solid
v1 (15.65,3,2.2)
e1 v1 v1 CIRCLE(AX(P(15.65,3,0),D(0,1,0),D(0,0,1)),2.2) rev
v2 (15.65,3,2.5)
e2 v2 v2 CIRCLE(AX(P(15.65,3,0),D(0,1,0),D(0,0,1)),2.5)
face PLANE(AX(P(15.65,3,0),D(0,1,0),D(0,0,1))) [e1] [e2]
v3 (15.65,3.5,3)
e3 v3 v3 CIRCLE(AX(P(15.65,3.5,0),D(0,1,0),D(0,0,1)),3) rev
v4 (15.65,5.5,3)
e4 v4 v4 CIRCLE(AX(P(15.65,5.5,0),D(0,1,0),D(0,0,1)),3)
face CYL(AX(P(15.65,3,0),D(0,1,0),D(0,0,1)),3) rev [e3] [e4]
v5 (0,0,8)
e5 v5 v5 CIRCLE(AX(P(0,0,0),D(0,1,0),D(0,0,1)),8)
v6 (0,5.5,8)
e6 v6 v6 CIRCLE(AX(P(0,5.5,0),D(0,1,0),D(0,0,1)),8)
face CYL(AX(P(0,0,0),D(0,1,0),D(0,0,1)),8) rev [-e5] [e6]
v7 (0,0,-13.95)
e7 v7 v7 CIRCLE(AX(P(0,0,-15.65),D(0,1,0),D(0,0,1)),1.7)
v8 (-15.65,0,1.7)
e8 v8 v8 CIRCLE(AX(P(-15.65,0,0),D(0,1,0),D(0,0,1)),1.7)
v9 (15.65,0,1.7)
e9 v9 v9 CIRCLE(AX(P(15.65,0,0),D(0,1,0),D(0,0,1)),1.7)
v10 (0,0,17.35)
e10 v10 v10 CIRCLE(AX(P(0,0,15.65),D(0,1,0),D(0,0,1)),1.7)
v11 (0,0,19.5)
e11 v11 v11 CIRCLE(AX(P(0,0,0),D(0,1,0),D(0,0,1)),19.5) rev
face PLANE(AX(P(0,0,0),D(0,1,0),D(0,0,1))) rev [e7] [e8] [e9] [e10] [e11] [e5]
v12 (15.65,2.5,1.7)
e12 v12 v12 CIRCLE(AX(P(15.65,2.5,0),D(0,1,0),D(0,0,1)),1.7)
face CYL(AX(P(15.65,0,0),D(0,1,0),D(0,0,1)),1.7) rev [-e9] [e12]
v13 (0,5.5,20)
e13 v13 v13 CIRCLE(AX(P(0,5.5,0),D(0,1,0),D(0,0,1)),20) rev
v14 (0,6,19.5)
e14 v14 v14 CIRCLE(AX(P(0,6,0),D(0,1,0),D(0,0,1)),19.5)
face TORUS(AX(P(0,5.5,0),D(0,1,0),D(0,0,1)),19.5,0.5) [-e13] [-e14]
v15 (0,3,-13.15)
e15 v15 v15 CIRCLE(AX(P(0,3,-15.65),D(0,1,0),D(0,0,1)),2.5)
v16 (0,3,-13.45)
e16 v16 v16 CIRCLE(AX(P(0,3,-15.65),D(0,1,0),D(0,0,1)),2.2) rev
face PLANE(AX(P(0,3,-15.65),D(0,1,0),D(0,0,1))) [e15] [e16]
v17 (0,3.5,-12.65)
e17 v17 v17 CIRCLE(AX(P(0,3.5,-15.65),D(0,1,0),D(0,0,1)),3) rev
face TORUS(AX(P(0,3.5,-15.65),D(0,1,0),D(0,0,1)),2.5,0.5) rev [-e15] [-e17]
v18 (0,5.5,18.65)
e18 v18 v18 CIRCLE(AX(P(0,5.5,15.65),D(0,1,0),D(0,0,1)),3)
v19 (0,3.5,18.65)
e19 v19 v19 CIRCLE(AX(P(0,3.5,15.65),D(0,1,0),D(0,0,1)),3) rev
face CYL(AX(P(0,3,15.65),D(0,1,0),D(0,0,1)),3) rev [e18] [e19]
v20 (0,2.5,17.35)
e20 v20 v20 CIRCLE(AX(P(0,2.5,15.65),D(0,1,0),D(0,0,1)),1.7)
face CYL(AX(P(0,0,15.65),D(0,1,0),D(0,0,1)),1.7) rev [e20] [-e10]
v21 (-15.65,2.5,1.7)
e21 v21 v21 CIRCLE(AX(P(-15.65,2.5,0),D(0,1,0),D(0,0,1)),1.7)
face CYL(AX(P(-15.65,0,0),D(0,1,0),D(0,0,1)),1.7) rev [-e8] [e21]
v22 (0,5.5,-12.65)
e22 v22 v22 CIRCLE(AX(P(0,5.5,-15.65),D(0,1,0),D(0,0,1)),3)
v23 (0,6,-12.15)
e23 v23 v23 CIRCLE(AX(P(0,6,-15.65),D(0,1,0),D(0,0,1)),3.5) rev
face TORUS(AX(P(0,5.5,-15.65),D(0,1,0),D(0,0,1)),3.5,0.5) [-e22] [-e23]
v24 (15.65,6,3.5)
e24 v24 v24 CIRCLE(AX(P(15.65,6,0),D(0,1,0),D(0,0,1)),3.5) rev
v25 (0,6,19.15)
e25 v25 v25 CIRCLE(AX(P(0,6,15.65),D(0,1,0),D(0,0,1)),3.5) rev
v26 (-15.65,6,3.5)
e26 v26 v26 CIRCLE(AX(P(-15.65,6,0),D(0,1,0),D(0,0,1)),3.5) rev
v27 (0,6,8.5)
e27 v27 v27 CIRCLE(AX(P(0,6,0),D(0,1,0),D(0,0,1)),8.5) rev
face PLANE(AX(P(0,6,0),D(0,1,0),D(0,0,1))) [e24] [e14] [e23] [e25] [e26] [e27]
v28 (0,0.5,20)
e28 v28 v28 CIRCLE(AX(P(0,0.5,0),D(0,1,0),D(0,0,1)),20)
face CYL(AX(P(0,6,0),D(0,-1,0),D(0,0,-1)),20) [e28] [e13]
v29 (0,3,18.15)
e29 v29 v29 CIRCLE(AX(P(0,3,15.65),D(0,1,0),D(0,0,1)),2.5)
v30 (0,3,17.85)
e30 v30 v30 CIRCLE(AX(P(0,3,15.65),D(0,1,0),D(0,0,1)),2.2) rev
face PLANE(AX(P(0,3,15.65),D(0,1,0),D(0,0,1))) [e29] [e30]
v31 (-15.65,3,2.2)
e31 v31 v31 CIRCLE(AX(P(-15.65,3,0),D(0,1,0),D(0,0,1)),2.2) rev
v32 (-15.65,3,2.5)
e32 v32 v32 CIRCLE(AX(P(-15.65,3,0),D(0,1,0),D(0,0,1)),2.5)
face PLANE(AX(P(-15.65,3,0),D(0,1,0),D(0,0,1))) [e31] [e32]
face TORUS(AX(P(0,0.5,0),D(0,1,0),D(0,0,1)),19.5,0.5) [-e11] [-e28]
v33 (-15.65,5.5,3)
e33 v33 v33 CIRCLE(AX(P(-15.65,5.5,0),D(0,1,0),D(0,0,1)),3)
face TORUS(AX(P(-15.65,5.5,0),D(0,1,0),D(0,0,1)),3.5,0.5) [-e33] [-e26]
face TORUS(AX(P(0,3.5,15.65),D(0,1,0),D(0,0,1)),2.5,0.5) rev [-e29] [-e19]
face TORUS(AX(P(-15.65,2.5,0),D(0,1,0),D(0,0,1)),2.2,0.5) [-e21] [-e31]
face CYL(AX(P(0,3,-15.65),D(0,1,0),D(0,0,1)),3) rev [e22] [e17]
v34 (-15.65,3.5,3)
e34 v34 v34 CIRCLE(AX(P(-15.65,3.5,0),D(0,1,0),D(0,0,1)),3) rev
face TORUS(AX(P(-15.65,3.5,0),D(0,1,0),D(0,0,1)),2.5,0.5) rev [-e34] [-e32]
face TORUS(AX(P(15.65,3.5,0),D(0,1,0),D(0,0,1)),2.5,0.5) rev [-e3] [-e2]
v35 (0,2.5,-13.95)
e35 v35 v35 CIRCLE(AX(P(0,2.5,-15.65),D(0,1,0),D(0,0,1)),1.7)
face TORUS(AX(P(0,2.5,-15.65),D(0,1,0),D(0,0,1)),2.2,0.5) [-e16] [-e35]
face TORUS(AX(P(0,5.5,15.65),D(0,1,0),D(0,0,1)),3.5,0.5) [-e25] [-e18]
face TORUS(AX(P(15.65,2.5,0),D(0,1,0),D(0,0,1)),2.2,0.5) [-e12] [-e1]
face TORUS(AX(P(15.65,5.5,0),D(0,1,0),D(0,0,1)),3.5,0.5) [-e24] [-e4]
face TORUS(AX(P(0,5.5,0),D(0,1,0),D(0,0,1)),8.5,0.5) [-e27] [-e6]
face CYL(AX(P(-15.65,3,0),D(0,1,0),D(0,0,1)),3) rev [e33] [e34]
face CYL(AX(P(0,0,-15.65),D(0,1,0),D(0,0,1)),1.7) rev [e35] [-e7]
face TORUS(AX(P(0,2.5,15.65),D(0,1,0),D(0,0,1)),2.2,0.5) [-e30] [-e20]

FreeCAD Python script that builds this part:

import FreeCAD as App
import Part
import Sketcher
from FreeCAD import Vector
Q = App.Units.Quantity


def edges_at(feature, points):
    """Names of the edges that pass closest to the given points."""
    edges = feature.Shape.Edges
    near = lambda p: min(range(len(edges)), key=lambda i: edges[i].distToShape(Part.Vertex(*p))[0])
    return sorted({f"Edge{near(p) + 1}" for p in points})

doc = App.newDocument("Part")
params = doc.addObject("Spreadsheet::Sheet", "Params")
for row, (alias, value) in enumerate([
    ("sketch1_diameter", "40 mm"),
    ("pad1_length", "6 mm"),
    ("sketch2_diameter", "16 mm"),
    ("sketch3_diameter", "3.4 mm"),
    ("sketch4_diameter", "6 mm"),
    ("pocket3_length", "3 mm"),
    ("fillet_radius", "0.5 mm"),
    ("fillet2_radius", "0.5 mm"),
    ("fillet3_radius", "0.5 mm"),
], start=1):
    params.set(f"A{row}", alias)
    params.set(f"B{row}", "=" + value)
    params.setAlias(f"B{row}", alias)

body = doc.addObject("PartDesign::Body", "Body")

# Sketch on XZ plane
sketch1 = doc.addObject("Sketcher::SketchObject", "Sketch")
body.addObject(sketch1)
sketch1.AttachmentSupport = (doc.XZ_Plane, [""])
sketch1.MapMode = "FlatFace"
sketch1.addGeometry(Part.Circle(Vector(0, 0, 0), Vector(0, 0, 1), 20), False)
sketch1.addConstraint([
    Sketcher.Constraint("Coincident", 0, 3, -1, 1),
    Sketcher.Constraint("Diameter", 0, Q("40 mm")),
])
sketch1.setExpression("Constraints[1]", "Params.sketch1_diameter")
pad1 = doc.addObject("PartDesign::Pad", "Pad")
body.addObject(pad1)
pad1.Profile = sketch1
pad1.setExpression("Length", "Params.pad1_length")
pad1.Reversed = True

# Sketch on XZ plane
sketch2 = doc.addObject("Sketcher::SketchObject", "Sketch001")
body.addObject(sketch2)
sketch2.AttachmentSupport = (doc.XZ_Plane, [""])
sketch2.MapMode = "FlatFace"
sketch2.AttachmentOffset = App.Placement(Vector(0, 0, -6), App.Rotation())
sketch2.addGeometry(Part.Circle(Vector(0, 0, 0), Vector(0, 0, 1), 8), False)
sketch2.addConstraint([
    Sketcher.Constraint("Coincident", 0, 3, -1, 1),
    Sketcher.Constraint("Diameter", 0, Q("16 mm")),
])
sketch2.setExpression("Constraints[1]", "Params.sketch2_diameter")
pocket1 = doc.addObject("PartDesign::Pocket", "Pocket")
body.addObject(pocket1)
pocket1.Profile = sketch2
pocket1.Type = "ThroughAll"
pocket1.Reversed = True

# Sketch on XZ plane
sketch3 = doc.addObject("Sketcher::SketchObject", "Sketch002")
body.addObject(sketch3)
sketch3.AttachmentSupport = (doc.XZ_Plane, [""])
sketch3.MapMode = "FlatFace"
sketch3.AttachmentOffset = App.Placement(Vector(0, 0, -6), App.Rotation())
sketch3.addGeometry([
    Part.Circle(Vector(0, -15.7, 0), Vector(0, 0, 1), 1.7),
    Part.Circle(Vector(-15.7, 0, 0), Vector(0, 0, 1), 1.7),
    Part.Circle(Vector(0, 15.7, 0), Vector(0, 0, 1), 1.7),
    Part.Circle(Vector(15.7, 0, 0), Vector(0, 0, 1), 1.7),
], False)
sketch3.addConstraint([
    Sketcher.Constraint("Equal", 0, 1),
    Sketcher.Constraint("Equal", 1, 2),
    Sketcher.Constraint("Equal", 2, 3),
    Sketcher.Constraint("Symmetric", 0, 3, 2, 3, -1, 1),
    Sketcher.Constraint("Symmetric", 1, 3, 3, 3, -1, 1),
    Sketcher.Constraint("PointOnObject", 0, 3, -2),
    Sketcher.Constraint("PointOnObject", 1, 3, -1),
    Sketcher.Constraint("Diameter", 0, Q("3.4 mm")),
    Sketcher.Constraint("DistanceY", 0, 3, 2, 3, Q("31.3 mm")),
    Sketcher.Constraint("DistanceX", 1, 3, 3, 3, Q("31.3 mm")),
])
sketch3.setExpression("Constraints[7]", "Params.sketch3_diameter")
pocket2 = doc.addObject("PartDesign::Pocket", "Pocket001")
body.addObject(pocket2)
pocket2.Profile = sketch3
pocket2.Type = "ThroughAll"
pocket2.Reversed = True

# Sketch on XZ plane
sketch4 = doc.addObject("Sketcher::SketchObject", "Sketch003")
body.addObject(sketch4)
sketch4.AttachmentSupport = (doc.XZ_Plane, [""])
sketch4.MapMode = "FlatFace"
sketch4.AttachmentOffset = App.Placement(Vector(0, 0, -6), App.Rotation())
sketch4.addGeometry([
    Part.Circle(Vector(0, -15.7, 0), Vector(0, 0, 1), 3),
    Part.Circle(Vector(-15.7, 0, 0), Vector(0, 0, 1), 3),
    Part.Circle(Vector(0, 15.7, 0), Vector(0, 0, 1), 3),
    Part.Circle(Vector(15.7, 0, 0), Vector(0, 0, 1), 3),
], False)
sketch4.addConstraint([
    Sketcher.Constraint("Equal", 0, 1),
    Sketcher.Constraint("Equal", 1, 2),
    Sketcher.Constraint("Equal", 2, 3),
    Sketcher.Constraint("Symmetric", 0, 3, 2, 3, -1, 1),
    Sketcher.Constraint("Symmetric", 1, 3, 3, 3, -1, 1),
    Sketcher.Constraint("PointOnObject", 0, 3, -2),
    Sketcher.Constraint("PointOnObject", 1, 3, -1),
    Sketcher.Constraint("Diameter", 0, Q("6 mm")),
    Sketcher.Constraint("DistanceY", 0, 3, 2, 3, Q("31.3 mm")),
    Sketcher.Constraint("DistanceX", 1, 3, 3, 3, Q("31.3 mm")),
])
sketch4.setExpression("Constraints[7]", "Params.sketch4_diameter")
pocket3 = doc.addObject("PartDesign::Pocket", "Pocket002")
body.addObject(pocket3)
pocket3.Profile = sketch4
pocket3.setExpression("Length", "Params.pocket3_length")
pocket3.Reversed = True
doc.recompute()

fillet = doc.addObject("PartDesign::Fillet", "Fillet")
body.addObject(fillet)
fillet.Base = (pocket3, edges_at(pocket3, [
    (0, 6, -18.65),
    (-15.65, 6, -3),
    (0, 6, 12.65),
    (15.65, 6, -3),
    (0, 6, -20),
    (0, 6, -8),
]))
fillet.setExpression("Radius", "Params.fillet_radius")
doc.recompute()

fillet2 = doc.addObject("PartDesign::Fillet", "Fillet001")
body.addObject(fillet2)
fillet2.Base = (fillet, edges_at(fillet, [
    (0, 3, -18.65),
    (0, 3, -17.35),
    (-15.65, 3, -3),
    (-15.65, 3, -1.7),
    (0, 3, 12.65),
    (0, 3, 13.95),
    (15.65, 3, -3),
    (15.65, 3, -1.7),
]))
fillet2.setExpression("Radius", "Params.fillet2_radius")
doc.recompute()

fillet3 = doc.addObject("PartDesign::Fillet", "Fillet002")
body.addObject(fillet3)
fillet3.Base = (fillet2, edges_at(fillet2, [(0, 0, -20)]))
fillet3.setExpression("Radius", "Params.fillet3_radius")

doc.recompute()
